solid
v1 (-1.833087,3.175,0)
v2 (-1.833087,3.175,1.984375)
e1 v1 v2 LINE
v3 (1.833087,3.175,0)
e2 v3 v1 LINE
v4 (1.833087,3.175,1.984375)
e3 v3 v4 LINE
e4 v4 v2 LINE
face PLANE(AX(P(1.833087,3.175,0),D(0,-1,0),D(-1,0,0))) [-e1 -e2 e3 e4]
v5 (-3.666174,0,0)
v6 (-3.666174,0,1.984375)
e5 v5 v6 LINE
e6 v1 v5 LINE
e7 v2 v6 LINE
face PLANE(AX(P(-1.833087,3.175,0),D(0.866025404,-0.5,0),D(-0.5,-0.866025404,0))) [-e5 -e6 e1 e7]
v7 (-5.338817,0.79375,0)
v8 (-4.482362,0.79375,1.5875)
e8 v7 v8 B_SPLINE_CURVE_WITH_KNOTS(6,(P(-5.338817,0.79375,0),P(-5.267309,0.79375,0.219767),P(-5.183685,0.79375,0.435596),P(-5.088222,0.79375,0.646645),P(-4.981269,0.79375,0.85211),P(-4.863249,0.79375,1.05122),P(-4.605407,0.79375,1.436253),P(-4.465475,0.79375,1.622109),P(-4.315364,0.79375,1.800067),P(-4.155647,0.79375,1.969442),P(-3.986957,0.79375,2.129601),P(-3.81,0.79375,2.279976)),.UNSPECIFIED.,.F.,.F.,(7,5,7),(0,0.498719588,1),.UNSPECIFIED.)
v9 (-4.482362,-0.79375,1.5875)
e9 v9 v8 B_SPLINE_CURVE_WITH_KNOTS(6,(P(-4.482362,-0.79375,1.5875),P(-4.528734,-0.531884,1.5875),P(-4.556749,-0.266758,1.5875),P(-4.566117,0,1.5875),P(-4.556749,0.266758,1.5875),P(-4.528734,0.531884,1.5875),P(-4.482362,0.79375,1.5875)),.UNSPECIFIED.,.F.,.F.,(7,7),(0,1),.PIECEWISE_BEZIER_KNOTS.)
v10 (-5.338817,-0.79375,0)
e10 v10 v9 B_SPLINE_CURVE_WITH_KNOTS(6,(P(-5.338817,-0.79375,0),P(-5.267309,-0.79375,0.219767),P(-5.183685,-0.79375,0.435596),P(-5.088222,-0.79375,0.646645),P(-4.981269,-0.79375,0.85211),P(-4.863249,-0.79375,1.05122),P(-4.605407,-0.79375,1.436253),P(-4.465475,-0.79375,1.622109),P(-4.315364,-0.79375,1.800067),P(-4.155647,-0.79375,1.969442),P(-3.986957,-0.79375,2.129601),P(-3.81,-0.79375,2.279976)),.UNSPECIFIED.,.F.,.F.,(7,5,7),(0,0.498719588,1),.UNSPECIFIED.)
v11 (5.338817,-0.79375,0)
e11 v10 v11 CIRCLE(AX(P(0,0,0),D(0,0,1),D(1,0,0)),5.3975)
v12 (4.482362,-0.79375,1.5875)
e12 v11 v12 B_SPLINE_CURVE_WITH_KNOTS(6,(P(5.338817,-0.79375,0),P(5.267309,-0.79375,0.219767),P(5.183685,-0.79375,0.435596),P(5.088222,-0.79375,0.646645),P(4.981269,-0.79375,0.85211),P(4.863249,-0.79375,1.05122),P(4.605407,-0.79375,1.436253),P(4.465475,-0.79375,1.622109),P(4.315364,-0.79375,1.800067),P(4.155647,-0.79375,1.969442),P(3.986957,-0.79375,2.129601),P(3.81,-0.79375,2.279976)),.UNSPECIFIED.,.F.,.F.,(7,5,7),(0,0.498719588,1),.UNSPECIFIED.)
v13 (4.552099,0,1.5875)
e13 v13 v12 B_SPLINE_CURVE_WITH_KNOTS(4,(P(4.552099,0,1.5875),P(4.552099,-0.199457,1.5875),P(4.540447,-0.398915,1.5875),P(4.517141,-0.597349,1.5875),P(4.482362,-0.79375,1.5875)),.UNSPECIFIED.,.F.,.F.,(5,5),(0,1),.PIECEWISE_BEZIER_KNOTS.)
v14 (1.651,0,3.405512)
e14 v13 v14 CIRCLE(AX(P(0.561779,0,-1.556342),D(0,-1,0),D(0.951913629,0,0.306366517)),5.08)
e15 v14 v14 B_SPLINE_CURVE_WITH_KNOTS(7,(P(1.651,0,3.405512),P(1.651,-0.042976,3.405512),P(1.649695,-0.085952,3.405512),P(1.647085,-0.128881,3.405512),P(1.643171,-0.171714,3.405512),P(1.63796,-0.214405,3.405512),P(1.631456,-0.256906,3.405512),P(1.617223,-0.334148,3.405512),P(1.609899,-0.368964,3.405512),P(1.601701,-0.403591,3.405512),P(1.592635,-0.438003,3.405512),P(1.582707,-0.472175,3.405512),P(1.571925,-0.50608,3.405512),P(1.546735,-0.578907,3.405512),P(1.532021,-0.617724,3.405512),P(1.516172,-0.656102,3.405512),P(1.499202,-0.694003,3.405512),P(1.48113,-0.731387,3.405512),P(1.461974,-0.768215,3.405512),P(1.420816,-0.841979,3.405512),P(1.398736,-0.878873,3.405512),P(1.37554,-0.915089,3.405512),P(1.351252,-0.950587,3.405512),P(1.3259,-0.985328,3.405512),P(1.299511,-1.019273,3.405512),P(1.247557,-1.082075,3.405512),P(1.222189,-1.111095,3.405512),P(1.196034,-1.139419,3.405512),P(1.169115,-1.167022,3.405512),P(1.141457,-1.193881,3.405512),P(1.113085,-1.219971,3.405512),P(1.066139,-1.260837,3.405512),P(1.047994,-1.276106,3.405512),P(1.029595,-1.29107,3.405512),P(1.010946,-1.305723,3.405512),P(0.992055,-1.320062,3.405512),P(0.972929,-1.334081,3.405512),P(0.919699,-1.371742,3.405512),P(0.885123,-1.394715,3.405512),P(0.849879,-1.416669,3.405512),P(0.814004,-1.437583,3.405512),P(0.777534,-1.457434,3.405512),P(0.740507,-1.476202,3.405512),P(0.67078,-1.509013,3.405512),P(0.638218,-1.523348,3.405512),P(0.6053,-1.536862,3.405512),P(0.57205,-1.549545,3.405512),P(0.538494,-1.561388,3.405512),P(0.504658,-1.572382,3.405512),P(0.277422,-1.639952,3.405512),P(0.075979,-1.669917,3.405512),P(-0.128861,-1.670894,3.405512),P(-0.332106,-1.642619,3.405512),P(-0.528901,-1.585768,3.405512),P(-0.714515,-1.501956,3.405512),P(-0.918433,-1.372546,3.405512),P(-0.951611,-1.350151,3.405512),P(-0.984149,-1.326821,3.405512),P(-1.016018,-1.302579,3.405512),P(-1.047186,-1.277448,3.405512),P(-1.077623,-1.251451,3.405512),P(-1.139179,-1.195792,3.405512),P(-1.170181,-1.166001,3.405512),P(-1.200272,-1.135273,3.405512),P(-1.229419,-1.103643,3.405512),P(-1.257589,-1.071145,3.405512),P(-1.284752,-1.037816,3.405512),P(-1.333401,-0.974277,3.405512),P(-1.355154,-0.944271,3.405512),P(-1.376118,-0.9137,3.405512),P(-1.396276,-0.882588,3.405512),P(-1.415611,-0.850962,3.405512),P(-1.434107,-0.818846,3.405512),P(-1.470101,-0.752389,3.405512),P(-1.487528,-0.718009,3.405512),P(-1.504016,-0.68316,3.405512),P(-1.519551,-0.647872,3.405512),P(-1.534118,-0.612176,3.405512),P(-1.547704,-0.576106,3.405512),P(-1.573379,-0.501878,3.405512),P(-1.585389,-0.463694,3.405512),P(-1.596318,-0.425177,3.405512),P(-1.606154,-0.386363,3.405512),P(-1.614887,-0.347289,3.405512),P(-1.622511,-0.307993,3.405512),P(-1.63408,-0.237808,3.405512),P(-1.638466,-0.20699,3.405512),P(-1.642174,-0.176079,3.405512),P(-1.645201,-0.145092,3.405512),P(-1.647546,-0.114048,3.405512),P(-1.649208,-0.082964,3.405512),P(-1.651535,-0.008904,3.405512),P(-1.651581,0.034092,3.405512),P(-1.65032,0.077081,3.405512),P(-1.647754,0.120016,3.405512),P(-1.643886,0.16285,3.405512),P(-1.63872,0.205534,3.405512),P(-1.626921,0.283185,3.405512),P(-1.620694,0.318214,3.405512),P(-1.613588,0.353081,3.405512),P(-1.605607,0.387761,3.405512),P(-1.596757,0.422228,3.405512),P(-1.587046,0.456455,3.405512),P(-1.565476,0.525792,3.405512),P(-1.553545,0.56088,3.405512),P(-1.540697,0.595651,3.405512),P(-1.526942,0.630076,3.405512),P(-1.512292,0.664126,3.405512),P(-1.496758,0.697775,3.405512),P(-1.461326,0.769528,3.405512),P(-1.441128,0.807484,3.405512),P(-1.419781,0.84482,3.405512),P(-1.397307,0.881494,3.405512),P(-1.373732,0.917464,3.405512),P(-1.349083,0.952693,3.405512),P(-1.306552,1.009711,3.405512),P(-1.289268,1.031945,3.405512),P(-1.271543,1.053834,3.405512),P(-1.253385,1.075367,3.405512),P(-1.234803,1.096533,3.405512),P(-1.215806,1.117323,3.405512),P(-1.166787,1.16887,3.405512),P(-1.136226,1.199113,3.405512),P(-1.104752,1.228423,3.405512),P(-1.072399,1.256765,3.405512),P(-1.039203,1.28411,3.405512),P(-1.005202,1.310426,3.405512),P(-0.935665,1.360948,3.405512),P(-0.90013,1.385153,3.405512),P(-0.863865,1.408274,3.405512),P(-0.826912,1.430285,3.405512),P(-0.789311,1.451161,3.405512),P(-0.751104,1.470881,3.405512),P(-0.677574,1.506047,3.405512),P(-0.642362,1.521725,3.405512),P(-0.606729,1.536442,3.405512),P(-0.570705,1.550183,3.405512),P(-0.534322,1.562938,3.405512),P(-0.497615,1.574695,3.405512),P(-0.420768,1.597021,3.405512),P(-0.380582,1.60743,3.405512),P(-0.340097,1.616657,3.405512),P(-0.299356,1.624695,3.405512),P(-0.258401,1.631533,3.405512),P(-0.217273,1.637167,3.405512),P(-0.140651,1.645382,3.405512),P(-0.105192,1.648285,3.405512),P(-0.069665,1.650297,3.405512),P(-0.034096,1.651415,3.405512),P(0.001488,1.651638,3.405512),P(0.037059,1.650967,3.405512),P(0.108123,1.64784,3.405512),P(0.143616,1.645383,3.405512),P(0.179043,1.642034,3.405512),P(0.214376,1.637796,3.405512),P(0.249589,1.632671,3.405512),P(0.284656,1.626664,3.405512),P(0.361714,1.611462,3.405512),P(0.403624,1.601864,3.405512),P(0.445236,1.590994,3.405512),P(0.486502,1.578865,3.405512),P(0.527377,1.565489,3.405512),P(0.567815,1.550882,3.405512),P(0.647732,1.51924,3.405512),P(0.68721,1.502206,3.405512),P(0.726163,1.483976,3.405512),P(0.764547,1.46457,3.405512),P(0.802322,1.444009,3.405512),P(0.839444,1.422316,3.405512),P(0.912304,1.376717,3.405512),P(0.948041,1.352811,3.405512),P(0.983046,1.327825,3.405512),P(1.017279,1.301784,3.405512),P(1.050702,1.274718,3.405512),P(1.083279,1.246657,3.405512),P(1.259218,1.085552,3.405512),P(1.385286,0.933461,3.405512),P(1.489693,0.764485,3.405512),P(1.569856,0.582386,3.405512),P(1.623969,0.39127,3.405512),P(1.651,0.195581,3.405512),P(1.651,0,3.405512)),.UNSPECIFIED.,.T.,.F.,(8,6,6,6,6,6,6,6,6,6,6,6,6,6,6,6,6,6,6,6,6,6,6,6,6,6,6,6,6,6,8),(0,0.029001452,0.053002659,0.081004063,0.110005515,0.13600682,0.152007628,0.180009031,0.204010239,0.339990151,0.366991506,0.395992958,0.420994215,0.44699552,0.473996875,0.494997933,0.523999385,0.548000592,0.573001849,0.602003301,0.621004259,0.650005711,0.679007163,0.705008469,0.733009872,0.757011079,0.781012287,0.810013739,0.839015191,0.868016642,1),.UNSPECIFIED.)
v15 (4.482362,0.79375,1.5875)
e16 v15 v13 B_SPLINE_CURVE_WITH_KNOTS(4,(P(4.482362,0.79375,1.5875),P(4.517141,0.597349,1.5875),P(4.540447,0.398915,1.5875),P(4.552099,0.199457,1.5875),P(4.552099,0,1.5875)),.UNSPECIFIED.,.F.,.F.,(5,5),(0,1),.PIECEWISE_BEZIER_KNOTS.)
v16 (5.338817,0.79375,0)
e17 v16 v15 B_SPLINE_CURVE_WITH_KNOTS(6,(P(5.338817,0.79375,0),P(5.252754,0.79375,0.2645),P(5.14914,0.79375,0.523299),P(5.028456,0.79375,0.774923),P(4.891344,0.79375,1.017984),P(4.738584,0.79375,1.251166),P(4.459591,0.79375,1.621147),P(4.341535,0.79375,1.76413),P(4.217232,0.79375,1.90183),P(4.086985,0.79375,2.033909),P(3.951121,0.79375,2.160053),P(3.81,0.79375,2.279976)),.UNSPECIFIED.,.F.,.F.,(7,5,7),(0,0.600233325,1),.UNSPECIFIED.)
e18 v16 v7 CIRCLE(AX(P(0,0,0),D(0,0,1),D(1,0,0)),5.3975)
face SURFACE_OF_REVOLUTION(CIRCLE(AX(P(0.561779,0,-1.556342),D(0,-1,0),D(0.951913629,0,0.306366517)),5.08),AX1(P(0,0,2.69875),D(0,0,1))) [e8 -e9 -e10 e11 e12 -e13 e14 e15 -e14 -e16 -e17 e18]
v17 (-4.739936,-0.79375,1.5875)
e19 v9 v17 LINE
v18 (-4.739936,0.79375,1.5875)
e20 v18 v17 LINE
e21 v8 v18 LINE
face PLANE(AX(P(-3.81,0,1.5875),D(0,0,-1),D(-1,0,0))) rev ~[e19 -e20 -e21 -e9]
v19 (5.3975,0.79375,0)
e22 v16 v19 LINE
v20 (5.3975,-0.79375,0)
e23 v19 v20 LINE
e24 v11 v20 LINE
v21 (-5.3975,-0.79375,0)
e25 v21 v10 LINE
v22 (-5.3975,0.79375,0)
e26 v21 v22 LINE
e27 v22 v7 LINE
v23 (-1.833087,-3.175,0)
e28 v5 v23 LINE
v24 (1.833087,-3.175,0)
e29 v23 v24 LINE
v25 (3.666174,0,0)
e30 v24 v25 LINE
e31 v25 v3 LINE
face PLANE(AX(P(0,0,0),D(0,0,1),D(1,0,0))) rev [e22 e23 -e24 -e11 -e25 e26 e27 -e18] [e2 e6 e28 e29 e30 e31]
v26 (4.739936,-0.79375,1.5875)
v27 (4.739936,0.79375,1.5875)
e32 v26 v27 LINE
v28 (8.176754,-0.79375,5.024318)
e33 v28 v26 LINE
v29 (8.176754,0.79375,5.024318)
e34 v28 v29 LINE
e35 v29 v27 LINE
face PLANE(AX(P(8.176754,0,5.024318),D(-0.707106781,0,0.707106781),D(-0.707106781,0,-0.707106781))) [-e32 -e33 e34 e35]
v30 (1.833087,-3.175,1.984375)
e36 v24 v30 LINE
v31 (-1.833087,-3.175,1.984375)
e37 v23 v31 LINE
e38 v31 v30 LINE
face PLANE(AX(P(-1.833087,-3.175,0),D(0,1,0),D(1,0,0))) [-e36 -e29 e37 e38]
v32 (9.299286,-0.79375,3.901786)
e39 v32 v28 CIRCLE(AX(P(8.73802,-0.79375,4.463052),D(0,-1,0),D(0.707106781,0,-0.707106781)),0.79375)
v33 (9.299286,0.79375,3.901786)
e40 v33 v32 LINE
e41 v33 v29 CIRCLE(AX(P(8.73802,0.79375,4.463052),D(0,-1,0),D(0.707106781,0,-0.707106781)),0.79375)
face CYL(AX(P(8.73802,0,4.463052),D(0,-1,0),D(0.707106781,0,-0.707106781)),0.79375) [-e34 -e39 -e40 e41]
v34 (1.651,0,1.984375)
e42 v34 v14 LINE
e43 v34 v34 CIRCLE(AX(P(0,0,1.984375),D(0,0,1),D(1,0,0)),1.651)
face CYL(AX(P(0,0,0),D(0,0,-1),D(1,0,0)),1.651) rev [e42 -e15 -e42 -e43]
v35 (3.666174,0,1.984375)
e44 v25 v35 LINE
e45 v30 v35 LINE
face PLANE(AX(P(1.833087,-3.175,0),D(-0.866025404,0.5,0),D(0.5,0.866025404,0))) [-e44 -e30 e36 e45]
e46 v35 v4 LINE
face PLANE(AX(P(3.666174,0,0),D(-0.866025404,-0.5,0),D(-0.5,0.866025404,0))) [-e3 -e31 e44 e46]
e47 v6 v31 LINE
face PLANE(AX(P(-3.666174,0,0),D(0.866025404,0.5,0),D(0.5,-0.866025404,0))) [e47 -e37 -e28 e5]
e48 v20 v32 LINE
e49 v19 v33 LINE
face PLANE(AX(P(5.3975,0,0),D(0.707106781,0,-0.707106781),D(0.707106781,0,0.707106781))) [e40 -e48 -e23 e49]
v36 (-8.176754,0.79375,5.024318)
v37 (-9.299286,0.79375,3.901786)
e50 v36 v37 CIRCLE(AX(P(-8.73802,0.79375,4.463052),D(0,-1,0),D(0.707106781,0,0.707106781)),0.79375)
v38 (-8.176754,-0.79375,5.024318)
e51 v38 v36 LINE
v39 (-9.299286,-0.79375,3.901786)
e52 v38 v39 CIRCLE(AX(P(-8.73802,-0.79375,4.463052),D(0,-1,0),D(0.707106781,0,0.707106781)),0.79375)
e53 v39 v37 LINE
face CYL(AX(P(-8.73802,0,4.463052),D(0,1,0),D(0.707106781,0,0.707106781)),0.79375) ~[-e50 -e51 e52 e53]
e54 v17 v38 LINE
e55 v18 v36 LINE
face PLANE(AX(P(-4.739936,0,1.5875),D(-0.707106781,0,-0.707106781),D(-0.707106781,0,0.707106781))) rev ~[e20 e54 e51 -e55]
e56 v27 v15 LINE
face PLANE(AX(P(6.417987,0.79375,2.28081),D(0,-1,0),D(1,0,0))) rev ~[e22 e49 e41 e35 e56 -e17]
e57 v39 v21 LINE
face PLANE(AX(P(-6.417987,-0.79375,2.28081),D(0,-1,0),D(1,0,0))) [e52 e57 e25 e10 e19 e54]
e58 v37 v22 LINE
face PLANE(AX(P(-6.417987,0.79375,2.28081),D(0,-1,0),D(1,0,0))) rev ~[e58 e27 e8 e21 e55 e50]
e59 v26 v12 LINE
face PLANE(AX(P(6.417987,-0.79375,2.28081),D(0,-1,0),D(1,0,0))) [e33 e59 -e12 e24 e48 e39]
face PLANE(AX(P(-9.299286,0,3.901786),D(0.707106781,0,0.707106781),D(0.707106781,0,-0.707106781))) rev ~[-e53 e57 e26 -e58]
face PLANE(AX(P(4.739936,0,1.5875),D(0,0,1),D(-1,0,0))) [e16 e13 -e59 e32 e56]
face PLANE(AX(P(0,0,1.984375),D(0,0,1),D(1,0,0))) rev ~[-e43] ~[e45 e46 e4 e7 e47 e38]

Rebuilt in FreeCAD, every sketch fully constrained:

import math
import FreeCAD as App
import Part
import Sketcher
Q = App.Units.Quantity

doc = App.newDocument("Part")
body = doc.addObject("PartDesign::Body", "Body")

# Sketch on XZ plane
sketch1 = body.newObject("Sketcher::SketchObject", "Sketch")
sketch1.AttachmentSupport = (doc.getObject("XZ_Plane"), [""])
sketch1.MapMode = "FlatFace"
sketch1.addGeometry([
    Part.ArcOfCircle(Part.Circle(App.Vector(0.6, -1.6, 0), App.Vector(0, 0, 1), 5.1), math.radians(18), math.radians(96)),
    Part.LineSegment(App.Vector(0, 3.5, 0), App.Vector(0, 0, 0)),
    Part.LineSegment(App.Vector(0, 0, 0), App.Vector(5.4, 0, 0)),
], False)
sketch1.addConstraint([
    Sketcher.Constraint("Coincident", 0, 2, 1, 1),
    Sketcher.Constraint("Coincident", 1, 2, 2, 1),
    Sketcher.Constraint("Coincident", 2, 2, 0, 1),
    Sketcher.Constraint("Vertical", 1),
    Sketcher.Constraint("Horizontal", 2),
    Sketcher.Constraint("Coincident", 1, 2, -1, 1),
    Sketcher.Constraint("Radius", 0, Q("0.2 in")),
    Sketcher.Constraint("DistanceX", 2, 1, 2, 2, Q("0.2125 in")),
    Sketcher.Constraint("DistanceY", 1, 2, 1, 1, Q("0.1375 in")),
])
revolution = body.newObject("PartDesign::Revolution", "Revolution")
revolution.Profile = sketch1
revolution.ReferenceAxis = (sketch1, ["V_Axis"])
revolution.Angle = 360

# Sketch on XY plane
sketch2 = body.newObject("Sketcher::SketchObject", "Sketch001")
sketch2.AttachmentSupport = (doc.getObject("XY_Plane"), [""])
sketch2.MapMode = "FlatFace"
sketch2.addGeometry([
    Part.LineSegment(App.Vector(1.8, 3.2, 0), App.Vector(-1.8, 3.2, 0)),  # 0
    Part.LineSegment(App.Vector(-1.8, 3.2, 0), App.Vector(-3.7, 0, 0)),  # 1
    Part.LineSegment(App.Vector(-3.7, 0, 0), App.Vector(-1.8, -3.2, 0)),  # 2
    Part.LineSegment(App.Vector(-1.8, -3.2, 0), App.Vector(1.8, -3.2, 0)),  # 3
    Part.LineSegment(App.Vector(1.8, -3.2, 0), App.Vector(3.7, 0, 0)),  # 4
    Part.LineSegment(App.Vector(3.7, 0, 0), App.Vector(1.8, 3.2, 0)),  # 5
    Part.Circle(App.Vector(0, 0, 0), App.Vector(0, 0, 1), 1.7),  # 6
], False)
sketch2.addConstraint([
    Sketcher.Constraint("Coincident", 0, 2, 1, 1),
    Sketcher.Constraint("Coincident", 1, 2, 2, 1),
    Sketcher.Constraint("Coincident", 2, 2, 3, 1),
    Sketcher.Constraint("Coincident", 3, 2, 4, 1),
    Sketcher.Constraint("Coincident", 4, 2, 5, 1),
    Sketcher.Constraint("Coincident", 5, 2, 0, 1),
    Sketcher.Constraint("Horizontal", 0),
    Sketcher.Constraint("Horizontal", 3),
    Sketcher.Constraint("Coincident", 6, 3, -1, 1),
    Sketcher.Constraint("Symmetric", 0, 2, 3, 2, -1, 1),
    Sketcher.Constraint("Symmetric", 1, 2, 4, 2, -1, 1),
    Sketcher.Constraint("PointOnObject", 1, 2, -1),
    Sketcher.Constraint("Parallel", 2, 5),
    Sketcher.Constraint("Vertical", 0, 2, 2, 2),
    Sketcher.Constraint("Diameter", 6, Q("0.13 in")),
    Sketcher.Constraint("Angle", 1, Q("-120 deg")),
    Sketcher.Constraint("DistanceY", 2, 2, 0, 2, Q("0.25 in")),
    Sketcher.Constraint("DistanceX", 0, 2, 0, 1, 3.666174),
])
pocket1 = body.newObject("PartDesign::Pocket", "Pocket")
pocket1.Profile = sketch2
pocket1.Length = Q("0.078125 in")
pocket1.Reversed = True

# Sketch on XY plane
sketch3 = body.newObject("Sketcher::SketchObject", "Sketch002")
sketch3.AttachmentSupport = (doc.getObject("XY_Plane"), [""])
sketch3.MapMode = "FlatFace"
sketch3.addGeometry(Part.Circle(App.Vector(0, 0, 0), App.Vector(0, 0, 1), 1.7), False)
sketch3.addConstraint([
    Sketcher.Constraint("Coincident", 0, 3, -1, 1),
    Sketcher.Constraint("Diameter", 0, Q("0.13 in")),
])
pocket2 = body.newObject("PartDesign::Pocket", "Pocket001")
pocket2.Profile = sketch3
pocket2.Length = Q("0.25 in")
pocket2.Reversed = True

# Sketch on XZ plane
sketch4 = body.newObject("Sketcher::SketchObject", "Sketch003")
sketch4.AttachmentSupport = (doc.getObject("XZ_Plane"), [""])
sketch4.MapMode = "FlatFace"
sketch4.addGeometry([
    Part.LineSegment(App.Vector(-5.4, 0, 0), App.Vector(-3.8, 0, 0)),  # 0
    Part.LineSegment(App.Vector(-3.8, 0, 0), App.Vector(-3.8, 1.6, 0)),  # 1
    Part.LineSegment(App.Vector(-3.8, 1.6, 0), App.Vector(-4.7, 1.6, 0)),  # 2
    Part.LineSegment(App.Vector(-4.7, 1.6, 0), App.Vector(-8.2, 5, 0)),  # 3
    Part.ArcOfCircle(Part.Circle(App.Vector(-8.7, 4.5, 0), App.Vector(0, 0, 1), 0.8), math.radians(45), math.radians(225)),  # 4
    Part.LineSegment(App.Vector(-9.3, 3.9, 0), App.Vector(-5.4, 0, 0)),  # 5
    Part.LineSegment(App.Vector(3.8, 1.6, 0), App.Vector(3.8, 0, 0)),  # 6
    Part.LineSegment(App.Vector(3.8, 0, 0), App.Vector(5.4, 0, 0)),  # 7
    Part.LineSegment(App.Vector(5.4, 0, 0), App.Vector(9.3, 3.9, 0)),  # 8
    Part.ArcOfCircle(Part.Circle(App.Vector(8.7, 4.5, 0), App.Vector(0, 0, 1), 0.8), math.radians(-45), math.radians(135)),  # 9
    Part.LineSegment(App.Vector(8.2, 5, 0), App.Vector(4.7, 1.6, 0)),  # 10
    Part.LineSegment(App.Vector(4.7, 1.6, 0), App.Vector(3.8, 1.6, 0)),  # 11
], False)
sketch4.addConstraint([
    Sketcher.Constraint("Coincident", 0, 2, 1, 1),
    Sketcher.Constraint("Coincident", 1, 2, 2, 1),
    Sketcher.Constraint("Coincident", 2, 2, 3, 1),
    Sketcher.Constraint("Tangent", 3, 2, 4, 1),
    Sketcher.Constraint("Tangent", 4, 2, 5, 1),
    Sketcher.Constraint("Coincident", 5, 2, 0, 1),
    Sketcher.Constraint("Coincident", 6, 2, 7, 1),
    Sketcher.Constraint("Coincident", 7, 2, 8, 1),
    Sketcher.Constraint("Tangent", 8, 2, 9, 1),
    Sketcher.Constraint("Tangent", 9, 2, 10, 1),
    Sketcher.Constraint("Coincident", 10, 2, 11, 1),
    Sketcher.Constraint("Coincident", 11, 2, 6, 1),
    Sketcher.Constraint("Horizontal", 0),
    Sketcher.Constraint("Vertical", 1),
    Sketcher.Constraint("Horizontal", 2),
    Sketcher.Constraint("Vertical", 6),
    Sketcher.Constraint("Horizontal", 7),
    Sketcher.Constraint("Horizontal", 11),
    Sketcher.Constraint("Equal", 4, 9),
    Sketcher.Constraint("Symmetric", 0, 2, 6, 2, -1, 1),
    Sketcher.Constraint("Symmetric", 4, 3, 9, 3, -2),
    Sketcher.Constraint("Symmetric", 5, 2, 7, 2, -2),
    Sketcher.Constraint("Symmetric", 2, 2, 10, 2, -2),
    Sketcher.Constraint("Parallel", 3, 5),
    Sketcher.Constraint("Perpendicular", 5, 8),
    Sketcher.Constraint("Equal", 7, 1),
    Sketcher.Constraint("Radius", 4, Q("0.03125 in")),
    Sketcher.Constraint("DistanceX", 0, 2, 6, 2, Q("0.3 in")),
    Sketcher.Constraint("DistanceX", 0, 1, 0, 2, Q("0.0625 in")),
    Sketcher.Constraint("Distance", 5, 5.517959),
])
pad1 = body.newObject("PartDesign::Pad", "Pad")
pad1.Profile = sketch4
pad1.Length = Q("0.0625 in")
pad1.Midplane = True

doc.recompute()
